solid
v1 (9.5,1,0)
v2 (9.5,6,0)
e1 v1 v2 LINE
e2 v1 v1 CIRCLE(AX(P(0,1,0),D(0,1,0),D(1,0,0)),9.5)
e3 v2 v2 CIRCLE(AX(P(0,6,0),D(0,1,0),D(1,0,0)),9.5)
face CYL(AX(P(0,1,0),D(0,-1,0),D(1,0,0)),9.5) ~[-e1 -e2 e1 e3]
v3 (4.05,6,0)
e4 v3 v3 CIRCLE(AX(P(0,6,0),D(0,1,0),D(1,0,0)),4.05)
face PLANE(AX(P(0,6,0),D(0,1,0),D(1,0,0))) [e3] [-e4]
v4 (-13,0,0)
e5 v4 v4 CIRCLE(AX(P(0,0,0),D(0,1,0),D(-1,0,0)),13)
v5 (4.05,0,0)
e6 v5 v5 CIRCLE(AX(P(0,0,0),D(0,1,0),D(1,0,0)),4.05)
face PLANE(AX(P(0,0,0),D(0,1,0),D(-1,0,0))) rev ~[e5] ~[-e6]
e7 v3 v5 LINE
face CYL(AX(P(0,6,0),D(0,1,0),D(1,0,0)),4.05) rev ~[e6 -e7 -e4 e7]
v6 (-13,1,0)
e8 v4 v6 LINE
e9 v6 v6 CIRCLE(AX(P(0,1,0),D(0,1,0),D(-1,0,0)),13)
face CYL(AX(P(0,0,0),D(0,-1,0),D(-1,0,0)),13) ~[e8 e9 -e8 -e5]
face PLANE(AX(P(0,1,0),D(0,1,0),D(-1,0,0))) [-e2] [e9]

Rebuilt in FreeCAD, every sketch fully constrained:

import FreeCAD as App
import Part
import Sketcher

V = App.Vector
Q = App.Units.Quantity

doc = App.newDocument("Part")
body = doc.addObject("PartDesign::Body", "Body")

# Sketch on XZ plane
sketch1 = body.newObject("Sketcher::SketchObject", "Sketch")
sketch1.AttachmentSupport = (doc.getObject("XZ_Plane"), [""])
sketch1.MapMode = "FlatFace"
sketch1.addGeometry(Part.Circle(V(0, 0, 0), V(0, 0, 1), 13), False)
sketch1.addConstraint([
    Sketcher.Constraint("Coincident", 0, 3, -1, 1),
    Sketcher.Constraint("Diameter", 0, Q("26 mm")),
])
pad1 = body.newObject("PartDesign::Pad", "Pad")
pad1.Profile = sketch1
pad1.Length = 1
pad1.Reversed = True

# Sketch on XZ plane
sketch2 = body.newObject("Sketcher::SketchObject", "Sketch001")
sketch2.AttachmentSupport = (doc.getObject("XZ_Plane"), [""])
sketch2.MapMode = "FlatFace"
sketch2.AttachmentOffset = App.Placement(V(0, 0, -1), App.Rotation())
sketch2.addGeometry(Part.Circle(V(0, 0, 0), V(0, 0, 1), 10), False)
sketch2.addConstraint([
    Sketcher.Constraint("Coincident", 0, 3, -1, 1),
    Sketcher.Constraint("Diameter", 0, Q("19 mm")),
])
pad2 = body.newObject("PartDesign::Pad", "Pad001")
pad2.Profile = sketch2
pad2.Length = 5
pad2.Reversed = True

# Sketch on XZ plane
sketch3 = body.newObject("Sketcher::SketchObject", "Sketch002")
sketch3.AttachmentSupport = (doc.getObject("XZ_Plane"), [""])
sketch3.MapMode = "FlatFace"
sketch3.AttachmentOffset = App.Placement(V(0, 0, -6), App.Rotation())
sketch3.addGeometry(Part.Circle(V(0, 0, 0), V(0, 0, 1), 4), False)
sketch3.addConstraint([
    Sketcher.Constraint("Coincident", 0, 3, -1, 1),
    Sketcher.Constraint("Diameter", 0, Q("8.1 mm")),
])
pocket1 = body.newObject("PartDesign::Pocket", "Pocket")
pocket1.Profile = sketch3
pocket1.Length = 6
pocket1.Reversed = True

doc.recompute()
